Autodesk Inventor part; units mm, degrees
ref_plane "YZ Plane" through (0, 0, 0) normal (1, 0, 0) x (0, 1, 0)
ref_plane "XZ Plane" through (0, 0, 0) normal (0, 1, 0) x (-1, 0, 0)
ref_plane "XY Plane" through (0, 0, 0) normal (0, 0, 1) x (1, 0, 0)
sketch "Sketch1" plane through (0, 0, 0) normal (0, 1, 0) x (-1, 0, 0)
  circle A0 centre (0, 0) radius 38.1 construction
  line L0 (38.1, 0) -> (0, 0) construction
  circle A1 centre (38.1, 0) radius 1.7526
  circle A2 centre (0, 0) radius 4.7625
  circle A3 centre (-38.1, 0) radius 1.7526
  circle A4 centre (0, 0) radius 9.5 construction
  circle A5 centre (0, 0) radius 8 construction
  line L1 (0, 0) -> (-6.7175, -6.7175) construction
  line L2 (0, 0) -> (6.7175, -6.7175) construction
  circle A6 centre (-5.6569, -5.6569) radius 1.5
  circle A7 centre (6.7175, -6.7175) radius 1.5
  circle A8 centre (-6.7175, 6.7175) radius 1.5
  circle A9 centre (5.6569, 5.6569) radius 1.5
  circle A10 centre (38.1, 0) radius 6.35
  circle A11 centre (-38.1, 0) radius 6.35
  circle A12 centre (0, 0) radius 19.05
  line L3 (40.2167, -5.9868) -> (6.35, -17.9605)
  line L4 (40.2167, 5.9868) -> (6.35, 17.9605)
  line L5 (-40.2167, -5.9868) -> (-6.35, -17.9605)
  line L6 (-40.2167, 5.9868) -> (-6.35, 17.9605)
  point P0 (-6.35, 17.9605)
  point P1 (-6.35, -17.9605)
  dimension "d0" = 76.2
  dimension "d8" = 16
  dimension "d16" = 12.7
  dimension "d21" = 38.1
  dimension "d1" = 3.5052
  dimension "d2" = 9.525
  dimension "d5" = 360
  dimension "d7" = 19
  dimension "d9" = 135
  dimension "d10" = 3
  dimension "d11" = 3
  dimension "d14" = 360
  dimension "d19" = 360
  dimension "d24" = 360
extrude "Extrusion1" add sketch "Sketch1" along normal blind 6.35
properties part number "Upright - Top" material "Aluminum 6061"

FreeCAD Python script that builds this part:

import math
import FreeCAD as App
import Part
import Sketcher
from FreeCAD import Vector
Q = App.Units.Quantity

doc = App.newDocument("Part")
body = doc.addObject("PartDesign::Body", "Body")

# Sketch on XZ plane
sketch1 = doc.addObject("Sketcher::SketchObject", "Sketch")
body.addObject(sketch1)
sketch1.AttachmentSupport = (doc.XZ_Plane, [""])
sketch1.MapMode = "FlatFace"
sketch1.addGeometry([
    Part.ArcOfCircle(Part.Circle(Vector(-38.1, 0, 0), Vector(0, 0, 1), 6.3), math.radians(109), math.radians(251)),  # 0
    Part.LineSegment(Vector(-40.2, 6, 0), Vector(-6.3, 18, 0)),  # 1
    Part.ArcOfCircle(Part.Circle(Vector(0, 0, 0), Vector(0, 0, 1), 19.1), math.radians(71), math.radians(109)),  # 2
    Part.LineSegment(Vector(6.3, 18, 0), Vector(40.2, 6, 0)),  # 3
    Part.ArcOfCircle(Part.Circle(Vector(38.1, 0, 0), Vector(0, 0, 1), 6.3), math.radians(-71), math.radians(71)),  # 4
    Part.LineSegment(Vector(40.2, -6, 0), Vector(6.3, -18, 0)),  # 5
    Part.ArcOfCircle(Part.Circle(Vector(0, 0, 0), Vector(0, 0, 1), 19.1), math.radians(-109), math.radians(-71)),  # 6
    Part.LineSegment(Vector(-6.3, -18, 0), Vector(-40.2, -6, 0)),  # 7
    Part.Circle(Vector(-38.1, 0, 0), Vector(0, 0, 1), 1.8),  # 8
    Part.Circle(Vector(0, 0, 0), Vector(0, 0, 1), 4.8),  # 9
    Part.Circle(Vector(-5.7, 5.7, 0), Vector(0, 0, 1), 1.5),  # 10
    Part.Circle(Vector(5.7, -5.7, 0), Vector(0, 0, 1), 1.5),  # 11
    Part.Circle(Vector(-6.7, -6.7, 0), Vector(0, 0, 1), 1.5),  # 12
    Part.Circle(Vector(6.7, 6.7, 0), Vector(0, 0, 1), 1.5),  # 13
    Part.Circle(Vector(38.1, 0, 0), Vector(0, 0, 1), 1.8),  # 14
], False)
sketch1.addConstraint([
    Sketcher.Constraint("Tangent", 0, 1, 1, 1),
    Sketcher.Constraint("Tangent", 1, 2, 2, 2),
    Sketcher.Constraint("Tangent", 2, 1, 3, 1),
    Sketcher.Constraint("Tangent", 3, 2, 4, 2),
    Sketcher.Constraint("Tangent", 4, 1, 5, 1),
    Sketcher.Constraint("Tangent", 5, 2, 6, 2),
    Sketcher.Constraint("Tangent", 6, 1, 7, 1),
    Sketcher.Constraint("Tangent", 7, 2, 0, 2),
    Sketcher.Constraint("Coincident", 2, 3, -1, 1),
    Sketcher.Constraint("Coincident", 6, 3, -1, 1),
    Sketcher.Constraint("Coincident", 9, 3, -1, 1),
    Sketcher.Constraint("Coincident", 8, 3, 0, 3),
    Sketcher.Constraint("Coincident", 14, 3, 4, 3),
    Sketcher.Constraint("Equal", 0, 4),
    Sketcher.Constraint("Equal", 2, 6),
    Sketcher.Constraint("Equal", 10, 11),
    Sketcher.Constraint("Equal", 11, 12),
    Sketcher.Constraint("Equal", 12, 13),
    Sketcher.Constraint("Equal", 8, 14),
    Sketcher.Constraint("Symmetric", 0, 3, 4, 3, -1, 1),
    Sketcher.Constraint("Symmetric", 10, 3, 11, 3, -1, 1),
    Sketcher.Constraint("Symmetric", 12, 3, 13, 3, -1, 1),
    Sketcher.Constraint("PointOnObject", 0, 3, -1),
    Sketcher.Constraint("Radius", 0, Q("0.25 in")),
    Sketcher.Constraint("Radius", 2, Q("0.75 in")),
    Sketcher.Constraint("Diameter", 8, Q("0.138 in")),
    Sketcher.Constraint("Diameter", 9, Q("0.375 in")),
    Sketcher.Constraint("DistanceX", 0, 3, 4, 3, Q("3 in")),
    Sketcher.Constraint("Diameter", 10, Q("0.1181 in")),
    Sketcher.Constraint("DistanceY", 10, 3, 0, 1, Q("0.013 in")),
    Sketcher.Constraint("DistanceX", 10, 3, -1, 1, Q("5.657 mm")),
    Sketcher.Constraint("DistanceX", 12, 3, -1, 1, Q("6.7175 mm")),
    Sketcher.Constraint("DistanceY", 12, 3, -1, 1, Q("6.7175 mm")),
])
pad1 = doc.addObject("PartDesign::Pad", "Pad")
body.addObject(pad1)
pad1.Profile = sketch1
pad1.Length = Q("0.25 in")
pad1.Reversed = True

doc.recompute()
